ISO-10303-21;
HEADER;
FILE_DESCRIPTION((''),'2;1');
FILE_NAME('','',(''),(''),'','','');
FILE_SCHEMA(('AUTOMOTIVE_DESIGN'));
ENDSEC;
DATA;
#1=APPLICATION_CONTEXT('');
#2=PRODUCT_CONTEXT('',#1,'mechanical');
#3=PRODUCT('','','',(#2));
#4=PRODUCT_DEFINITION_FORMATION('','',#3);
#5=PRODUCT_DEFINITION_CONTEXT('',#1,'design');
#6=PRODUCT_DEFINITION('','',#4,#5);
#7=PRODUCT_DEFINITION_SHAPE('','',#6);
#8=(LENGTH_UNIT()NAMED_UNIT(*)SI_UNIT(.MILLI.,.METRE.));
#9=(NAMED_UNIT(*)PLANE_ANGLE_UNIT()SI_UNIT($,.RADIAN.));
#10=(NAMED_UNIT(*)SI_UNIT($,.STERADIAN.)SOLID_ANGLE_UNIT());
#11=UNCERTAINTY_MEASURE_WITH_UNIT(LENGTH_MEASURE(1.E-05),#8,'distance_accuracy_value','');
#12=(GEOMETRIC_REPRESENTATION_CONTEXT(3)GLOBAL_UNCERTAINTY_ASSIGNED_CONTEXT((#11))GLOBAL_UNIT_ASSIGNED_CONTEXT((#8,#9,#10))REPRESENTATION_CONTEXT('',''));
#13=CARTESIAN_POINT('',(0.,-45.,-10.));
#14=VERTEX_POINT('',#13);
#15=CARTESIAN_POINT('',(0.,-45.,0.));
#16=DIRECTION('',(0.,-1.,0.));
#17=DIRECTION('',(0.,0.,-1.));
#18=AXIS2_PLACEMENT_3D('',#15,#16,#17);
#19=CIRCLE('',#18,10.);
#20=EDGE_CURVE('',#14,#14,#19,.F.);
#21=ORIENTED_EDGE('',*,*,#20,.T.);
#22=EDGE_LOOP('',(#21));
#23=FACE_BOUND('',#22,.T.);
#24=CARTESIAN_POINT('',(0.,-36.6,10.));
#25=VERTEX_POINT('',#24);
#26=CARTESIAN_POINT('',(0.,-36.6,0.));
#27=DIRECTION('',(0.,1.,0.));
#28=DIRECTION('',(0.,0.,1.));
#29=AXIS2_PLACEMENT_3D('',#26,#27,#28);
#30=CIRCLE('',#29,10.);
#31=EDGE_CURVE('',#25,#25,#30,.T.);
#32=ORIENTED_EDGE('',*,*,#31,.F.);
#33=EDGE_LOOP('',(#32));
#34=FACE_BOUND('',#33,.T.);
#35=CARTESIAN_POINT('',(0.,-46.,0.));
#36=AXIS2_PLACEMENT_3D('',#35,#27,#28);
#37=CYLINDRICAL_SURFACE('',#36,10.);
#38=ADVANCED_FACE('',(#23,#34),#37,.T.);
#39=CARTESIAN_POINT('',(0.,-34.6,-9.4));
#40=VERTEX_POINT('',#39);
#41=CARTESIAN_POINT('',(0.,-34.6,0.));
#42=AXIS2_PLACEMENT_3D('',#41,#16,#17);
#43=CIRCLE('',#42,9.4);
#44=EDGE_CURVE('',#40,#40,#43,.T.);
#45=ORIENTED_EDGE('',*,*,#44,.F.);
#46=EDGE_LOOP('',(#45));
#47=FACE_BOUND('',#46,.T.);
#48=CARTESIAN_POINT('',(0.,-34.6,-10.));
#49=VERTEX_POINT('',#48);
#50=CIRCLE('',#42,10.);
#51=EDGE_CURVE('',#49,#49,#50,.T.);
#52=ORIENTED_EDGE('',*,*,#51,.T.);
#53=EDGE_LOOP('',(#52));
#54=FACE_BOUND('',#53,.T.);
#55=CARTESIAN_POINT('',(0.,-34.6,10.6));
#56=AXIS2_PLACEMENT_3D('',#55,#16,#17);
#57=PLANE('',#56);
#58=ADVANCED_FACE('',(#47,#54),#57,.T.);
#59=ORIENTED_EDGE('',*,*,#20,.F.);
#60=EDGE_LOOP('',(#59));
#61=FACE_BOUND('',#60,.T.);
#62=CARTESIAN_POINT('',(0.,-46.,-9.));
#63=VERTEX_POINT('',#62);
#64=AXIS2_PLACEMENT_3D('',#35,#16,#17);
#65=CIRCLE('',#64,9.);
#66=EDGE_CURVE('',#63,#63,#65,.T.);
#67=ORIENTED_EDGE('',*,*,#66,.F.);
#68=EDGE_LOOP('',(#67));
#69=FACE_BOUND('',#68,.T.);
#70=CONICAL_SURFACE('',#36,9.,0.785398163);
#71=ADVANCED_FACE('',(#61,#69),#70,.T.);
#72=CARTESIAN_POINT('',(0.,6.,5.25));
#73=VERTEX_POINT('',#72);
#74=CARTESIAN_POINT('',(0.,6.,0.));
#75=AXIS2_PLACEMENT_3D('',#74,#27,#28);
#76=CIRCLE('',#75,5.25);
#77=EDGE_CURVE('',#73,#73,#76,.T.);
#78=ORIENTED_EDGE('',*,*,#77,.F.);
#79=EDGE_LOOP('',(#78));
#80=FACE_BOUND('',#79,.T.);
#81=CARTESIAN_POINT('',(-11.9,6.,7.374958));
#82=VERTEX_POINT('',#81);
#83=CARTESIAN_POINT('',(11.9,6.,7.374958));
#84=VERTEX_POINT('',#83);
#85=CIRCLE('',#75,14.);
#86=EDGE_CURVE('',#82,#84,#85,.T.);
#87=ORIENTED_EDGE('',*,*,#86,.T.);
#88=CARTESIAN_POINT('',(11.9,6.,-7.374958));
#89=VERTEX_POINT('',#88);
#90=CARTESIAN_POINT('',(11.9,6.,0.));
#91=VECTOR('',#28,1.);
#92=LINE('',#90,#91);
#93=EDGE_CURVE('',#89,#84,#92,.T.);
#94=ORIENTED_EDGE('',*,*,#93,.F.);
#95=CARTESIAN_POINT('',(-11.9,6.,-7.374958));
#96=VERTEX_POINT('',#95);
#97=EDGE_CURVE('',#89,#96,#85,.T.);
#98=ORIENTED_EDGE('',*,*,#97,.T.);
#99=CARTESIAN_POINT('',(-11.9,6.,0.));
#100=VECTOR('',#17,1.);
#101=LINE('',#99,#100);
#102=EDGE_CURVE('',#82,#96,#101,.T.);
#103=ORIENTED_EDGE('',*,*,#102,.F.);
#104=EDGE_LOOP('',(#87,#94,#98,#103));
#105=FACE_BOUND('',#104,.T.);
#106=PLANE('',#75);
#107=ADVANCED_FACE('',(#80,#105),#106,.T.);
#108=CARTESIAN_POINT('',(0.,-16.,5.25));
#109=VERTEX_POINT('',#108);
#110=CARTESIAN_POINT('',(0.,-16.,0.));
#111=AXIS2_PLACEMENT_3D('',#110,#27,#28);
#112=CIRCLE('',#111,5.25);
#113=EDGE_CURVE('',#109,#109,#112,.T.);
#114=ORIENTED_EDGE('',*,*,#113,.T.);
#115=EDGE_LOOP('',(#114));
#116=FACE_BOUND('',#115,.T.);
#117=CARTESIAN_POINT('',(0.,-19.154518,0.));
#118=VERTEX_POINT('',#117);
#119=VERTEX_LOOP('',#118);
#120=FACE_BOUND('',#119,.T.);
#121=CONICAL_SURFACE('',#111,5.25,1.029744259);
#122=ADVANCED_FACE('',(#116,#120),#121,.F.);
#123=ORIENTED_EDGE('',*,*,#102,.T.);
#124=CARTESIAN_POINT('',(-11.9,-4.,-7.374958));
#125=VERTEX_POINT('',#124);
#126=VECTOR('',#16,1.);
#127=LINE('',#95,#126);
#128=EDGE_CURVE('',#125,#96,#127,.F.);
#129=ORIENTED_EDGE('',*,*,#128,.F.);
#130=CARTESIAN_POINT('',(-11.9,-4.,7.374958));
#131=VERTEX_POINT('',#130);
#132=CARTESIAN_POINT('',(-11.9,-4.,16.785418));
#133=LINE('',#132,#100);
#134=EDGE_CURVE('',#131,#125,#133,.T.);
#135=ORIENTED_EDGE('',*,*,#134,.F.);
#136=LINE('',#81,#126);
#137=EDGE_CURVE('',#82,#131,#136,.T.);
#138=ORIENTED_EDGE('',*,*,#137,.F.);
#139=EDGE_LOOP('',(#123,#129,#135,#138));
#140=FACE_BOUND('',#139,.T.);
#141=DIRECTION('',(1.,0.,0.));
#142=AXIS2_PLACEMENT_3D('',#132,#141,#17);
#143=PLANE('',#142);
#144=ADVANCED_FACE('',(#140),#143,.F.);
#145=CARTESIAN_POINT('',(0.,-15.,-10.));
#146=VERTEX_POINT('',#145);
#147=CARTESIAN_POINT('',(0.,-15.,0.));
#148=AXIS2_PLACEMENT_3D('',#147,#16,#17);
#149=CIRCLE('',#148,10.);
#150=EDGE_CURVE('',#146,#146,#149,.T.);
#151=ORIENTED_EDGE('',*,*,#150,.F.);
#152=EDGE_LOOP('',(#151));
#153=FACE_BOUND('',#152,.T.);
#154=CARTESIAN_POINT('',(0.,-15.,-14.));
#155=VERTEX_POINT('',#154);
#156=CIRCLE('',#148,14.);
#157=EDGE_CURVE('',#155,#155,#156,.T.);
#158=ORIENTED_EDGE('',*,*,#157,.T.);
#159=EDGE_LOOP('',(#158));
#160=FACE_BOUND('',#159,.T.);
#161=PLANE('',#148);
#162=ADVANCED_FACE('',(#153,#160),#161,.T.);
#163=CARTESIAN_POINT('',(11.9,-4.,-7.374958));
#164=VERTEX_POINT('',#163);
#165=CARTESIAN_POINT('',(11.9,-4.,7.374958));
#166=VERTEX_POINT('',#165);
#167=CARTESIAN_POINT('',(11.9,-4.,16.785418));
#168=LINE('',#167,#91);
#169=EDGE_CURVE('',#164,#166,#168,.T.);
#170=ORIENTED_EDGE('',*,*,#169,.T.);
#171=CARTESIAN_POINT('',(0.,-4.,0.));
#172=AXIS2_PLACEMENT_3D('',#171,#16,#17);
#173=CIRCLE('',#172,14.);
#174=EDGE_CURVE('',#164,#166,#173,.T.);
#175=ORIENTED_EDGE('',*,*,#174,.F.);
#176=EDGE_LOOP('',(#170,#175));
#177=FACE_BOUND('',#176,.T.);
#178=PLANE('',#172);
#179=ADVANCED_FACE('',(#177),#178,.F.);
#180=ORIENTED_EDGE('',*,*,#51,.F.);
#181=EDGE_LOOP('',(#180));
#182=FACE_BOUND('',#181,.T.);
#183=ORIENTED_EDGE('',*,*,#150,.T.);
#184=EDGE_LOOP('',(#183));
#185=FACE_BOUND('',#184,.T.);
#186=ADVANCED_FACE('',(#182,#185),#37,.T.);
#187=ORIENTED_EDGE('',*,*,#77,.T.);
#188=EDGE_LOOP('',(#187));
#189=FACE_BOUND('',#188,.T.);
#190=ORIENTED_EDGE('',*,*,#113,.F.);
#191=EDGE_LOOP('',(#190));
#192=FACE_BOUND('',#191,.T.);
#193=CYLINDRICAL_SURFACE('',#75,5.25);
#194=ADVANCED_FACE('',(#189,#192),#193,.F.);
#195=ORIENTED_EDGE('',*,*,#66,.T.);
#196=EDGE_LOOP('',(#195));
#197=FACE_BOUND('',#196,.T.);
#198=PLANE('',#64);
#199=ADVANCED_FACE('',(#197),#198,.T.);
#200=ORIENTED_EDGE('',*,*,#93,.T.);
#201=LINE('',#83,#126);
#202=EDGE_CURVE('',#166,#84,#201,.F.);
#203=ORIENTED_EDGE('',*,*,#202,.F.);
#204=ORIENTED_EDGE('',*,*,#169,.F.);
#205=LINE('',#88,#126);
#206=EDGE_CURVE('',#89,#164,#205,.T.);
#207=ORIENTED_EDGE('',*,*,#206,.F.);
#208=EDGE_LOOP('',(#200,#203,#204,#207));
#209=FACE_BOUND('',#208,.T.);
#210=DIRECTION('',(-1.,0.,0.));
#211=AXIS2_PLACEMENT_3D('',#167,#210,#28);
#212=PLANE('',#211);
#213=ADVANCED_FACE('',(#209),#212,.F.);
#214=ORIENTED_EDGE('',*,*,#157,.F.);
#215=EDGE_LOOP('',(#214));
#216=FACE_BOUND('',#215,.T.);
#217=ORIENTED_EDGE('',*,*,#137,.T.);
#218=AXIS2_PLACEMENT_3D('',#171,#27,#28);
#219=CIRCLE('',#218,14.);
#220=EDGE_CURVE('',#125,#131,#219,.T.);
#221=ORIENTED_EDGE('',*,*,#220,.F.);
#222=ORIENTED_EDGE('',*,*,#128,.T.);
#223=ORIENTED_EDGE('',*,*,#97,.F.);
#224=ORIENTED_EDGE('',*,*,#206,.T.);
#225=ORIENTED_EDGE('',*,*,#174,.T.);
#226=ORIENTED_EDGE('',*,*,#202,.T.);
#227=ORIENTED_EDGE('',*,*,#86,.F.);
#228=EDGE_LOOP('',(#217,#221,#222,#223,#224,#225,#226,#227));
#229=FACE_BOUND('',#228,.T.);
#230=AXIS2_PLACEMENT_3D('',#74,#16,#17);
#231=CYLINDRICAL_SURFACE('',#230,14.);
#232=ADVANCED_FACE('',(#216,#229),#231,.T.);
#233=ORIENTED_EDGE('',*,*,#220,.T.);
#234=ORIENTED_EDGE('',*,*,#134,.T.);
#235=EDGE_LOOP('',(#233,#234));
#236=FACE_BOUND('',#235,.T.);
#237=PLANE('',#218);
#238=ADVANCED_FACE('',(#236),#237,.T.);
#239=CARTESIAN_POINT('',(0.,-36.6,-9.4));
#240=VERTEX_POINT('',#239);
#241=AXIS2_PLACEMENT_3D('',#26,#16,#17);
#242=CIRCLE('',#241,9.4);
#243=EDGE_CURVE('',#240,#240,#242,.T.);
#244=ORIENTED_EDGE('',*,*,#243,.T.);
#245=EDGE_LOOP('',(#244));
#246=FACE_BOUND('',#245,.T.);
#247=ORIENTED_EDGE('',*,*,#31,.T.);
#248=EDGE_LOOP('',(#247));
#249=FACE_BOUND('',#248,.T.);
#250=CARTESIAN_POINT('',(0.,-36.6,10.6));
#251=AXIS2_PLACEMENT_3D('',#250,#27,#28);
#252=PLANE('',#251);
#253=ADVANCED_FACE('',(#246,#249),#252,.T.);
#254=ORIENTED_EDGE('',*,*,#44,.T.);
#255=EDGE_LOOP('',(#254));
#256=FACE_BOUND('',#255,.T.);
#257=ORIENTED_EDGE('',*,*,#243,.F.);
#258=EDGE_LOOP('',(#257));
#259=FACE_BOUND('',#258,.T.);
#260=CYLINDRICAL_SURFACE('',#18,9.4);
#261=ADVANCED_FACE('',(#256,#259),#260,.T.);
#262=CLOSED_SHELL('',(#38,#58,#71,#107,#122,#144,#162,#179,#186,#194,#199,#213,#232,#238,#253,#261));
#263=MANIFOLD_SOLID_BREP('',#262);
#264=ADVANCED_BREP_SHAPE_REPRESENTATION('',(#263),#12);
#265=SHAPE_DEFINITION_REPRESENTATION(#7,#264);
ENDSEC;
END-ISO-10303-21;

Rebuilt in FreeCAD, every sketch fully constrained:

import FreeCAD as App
import Part
import Sketcher

V = App.Vector


def edges_at(feature, points):
    """Names of the edges that pass closest to the given points."""
    edges = feature.Shape.Edges
    near = lambda p: min(range(len(edges)), key=lambda i: edges[i].distToShape(Part.Vertex(*p))[0])
    return sorted({f"Edge{near(p) + 1}" for p in points})


def add_polygon(sketch, points):
    """Adds a closed chain of lines whose ends are joined by coincident constraints."""
    first, n = sketch.GeometryCount, len(points)
    for a, b in zip(points, points[1:] + points[:1]):
        sketch.addGeometry(Part.LineSegment(App.Vector(*a, 0), App.Vector(*b, 0)), False)
    for i in range(n):
        sketch.addConstraint(Sketcher.Constraint("Coincident", first + i, 2, first + (i + 1) % n, 1))

doc = App.newDocument("Part")
body = doc.addObject("PartDesign::Body", "Body")

# Sketch on XZ plane
sketch1 = body.newObject("Sketcher::SketchObject", "Sketch")
sketch1.AttachmentSupport = (doc.getObject("XZ_Plane"), [""])
sketch1.MapMode = "FlatFace"
sketch1.addGeometry(Part.Circle(V(0, 0, 0), V(0, 0, 1), 14), False)
sketch1.addConstraint([
    Sketcher.Constraint("Coincident", 0, 3, -1, 1),
    Sketcher.Constraint("Diameter", 0, 28.0),
])
pad1 = body.newObject("PartDesign::Pad", "Pad")
pad1.Profile = sketch1
pad1.Length = 6
pad1.Reversed = True

# Sketch on XZ plane
sketch2 = body.newObject("Sketcher::SketchObject", "Sketch001")
sketch2.AttachmentSupport = (doc.getObject("XZ_Plane"), [""])
sketch2.MapMode = "FlatFace"
sketch2.addGeometry(Part.Circle(V(0, 0, 0), V(0, 0, 1), 14), False)
sketch2.addConstraint([
    Sketcher.Constraint("Coincident", 0, 3, -1, 1),
    Sketcher.Constraint("Diameter", 0, 28.0),
])
pad2 = body.newObject("PartDesign::Pad", "Pad001")
pad2.Profile = sketch2
pad2.Length = 15

# Sketch on XZ plane
sketch3 = body.newObject("Sketcher::SketchObject", "Sketch002")
sketch3.AttachmentSupport = (doc.getObject("XZ_Plane"), [""])
sketch3.MapMode = "FlatFace"
sketch3.AttachmentOffset = App.Placement(V(0, 0, 15), App.Rotation())
sketch3.addGeometry(Part.Circle(V(0, 0, 0), V(0, 0, 1), 10), False)
sketch3.addConstraint([
    Sketcher.Constraint("Coincident", 0, 3, -1, 1),
    Sketcher.Constraint("Diameter", 0, 20.0),
])
pad3 = body.newObject("PartDesign::Pad", "Pad002")
pad3.Profile = sketch3
pad3.Length = 31

# Sketch on XZ plane
sketch4 = body.newObject("Sketcher::SketchObject", "Sketch003")
sketch4.AttachmentSupport = (doc.getObject("XZ_Plane"), [""])
sketch4.MapMode = "FlatFace"
sketch4.AttachmentOffset = App.Placement(V(0, 0, -6), App.Rotation())
sketch4.addGeometry(Part.Circle(V(0, 0, 0), V(0, 0, 1), 5.25), False)
sketch4.addConstraint([
    Sketcher.Constraint("Coincident", 0, 3, -1, 1),
    Sketcher.Constraint("Diameter", 0, 10.5),
])
doc.recompute()
hole = body.newObject("PartDesign::Hole", "Hole")
hole.Profile = sketch4
hole.ThreadType = "None"
hole.Diameter = 10.5
hole.DepthType = "Dimension"
hole.Depth = 22
hole.DrillPoint = "Angled"
hole.DrillPointAngle = 118
hole.Reversed = True
doc.recompute()

chamfer = body.newObject("PartDesign::Chamfer", "Chamfer")
chamfer.Base = (hole, edges_at(hole, [(-10, -46, 0)]))
chamfer.Size = 1

# Sketch on XZ plane
sketch5 = body.newObject("Sketcher::SketchObject", "Sketch004")
sketch5.AttachmentSupport = (doc.getObject("XZ_Plane"), [""])
sketch5.MapMode = "FlatFace"
sketch5.AttachmentOffset = App.Placement(V(0, 0, -6), App.Rotation())
add_polygon(sketch5, [(-18.14136, -16.785418), (-18.14136, 16.785418), (-11.9, 16.785418), (-11.9, -16.785418)])  # lines 0-3
add_polygon(sketch5, [(11.9, -16.785418), (11.9, 16.785418), (15.703762, 16.785418), (15.703762, -16.785418)])  # lines 4-7
sketch5.addConstraint([
    Sketcher.Constraint("Vertical", 0),
    Sketcher.Constraint("Horizontal", 1),
    Sketcher.Constraint("Vertical", 2),
    Sketcher.Constraint("Horizontal", 3),
    Sketcher.Constraint("Vertical", 4),
    Sketcher.Constraint("Horizontal", 5),
    Sketcher.Constraint("Vertical", 6),
    Sketcher.Constraint("Horizontal", 7),
    Sketcher.Constraint("Symmetric", 2, 2, 4, 2, -1, 1),
    Sketcher.Constraint("Horizontal", 1, 2, 4, 2),
    Sketcher.Constraint("Horizontal", 3, 2, 6, 2),
    Sketcher.Constraint("DistanceX", 1, 2, -1, 1, 11.9),
    Sketcher.Constraint("DistanceX", 1, 1, 1, 2, 6.24136),
    Sketcher.Constraint("DistanceX", 5, 1, 5, 2, 3.803762),
    Sketcher.Constraint("DistanceY", 0, 1, 0, 2, 33.570835),
])
pocket1 = body.newObject("PartDesign::Pocket", "Pocket")
pocket1.Profile = sketch5
pocket1.Length = 10
pocket1.Reversed = True

# Sketch on YZ plane
sketch6 = body.newObject("Sketcher::SketchObject", "Sketch005")
sketch6.AttachmentSupport = (doc.getObject("YZ_Plane"), [""])
sketch6.MapMode = "FlatFace"
add_polygon(sketch6, [(-34.6, 10.6), (-36.6, 10.6), (-36.6, 9.4), (-34.6, 9.4)])  # lines 0-3
sketch6.addConstraint([
    Sketcher.Constraint("Horizontal", 0),
    Sketcher.Constraint("Vertical", 1),
    Sketcher.Constraint("Horizontal", 2),
    Sketcher.Constraint("Vertical", 3),
    Sketcher.Constraint("DistanceX", 0, 2, 0, 1, 2.0),
    Sketcher.Constraint("DistanceY", 1, 2, 1, 1, 1.2),
    Sketcher.Constraint("DistanceX", 0, 2, -1, 1, 36.6),
    Sketcher.Constraint("DistanceY", -1, 1, 0, 2, 10.6),
])
groove = body.newObject("PartDesign::Groove", "Groove")
groove.Profile = sketch6
groove.ReferenceAxis = (sketch6, ["H_Axis"])
groove.Angle = 360

doc.recompute()
